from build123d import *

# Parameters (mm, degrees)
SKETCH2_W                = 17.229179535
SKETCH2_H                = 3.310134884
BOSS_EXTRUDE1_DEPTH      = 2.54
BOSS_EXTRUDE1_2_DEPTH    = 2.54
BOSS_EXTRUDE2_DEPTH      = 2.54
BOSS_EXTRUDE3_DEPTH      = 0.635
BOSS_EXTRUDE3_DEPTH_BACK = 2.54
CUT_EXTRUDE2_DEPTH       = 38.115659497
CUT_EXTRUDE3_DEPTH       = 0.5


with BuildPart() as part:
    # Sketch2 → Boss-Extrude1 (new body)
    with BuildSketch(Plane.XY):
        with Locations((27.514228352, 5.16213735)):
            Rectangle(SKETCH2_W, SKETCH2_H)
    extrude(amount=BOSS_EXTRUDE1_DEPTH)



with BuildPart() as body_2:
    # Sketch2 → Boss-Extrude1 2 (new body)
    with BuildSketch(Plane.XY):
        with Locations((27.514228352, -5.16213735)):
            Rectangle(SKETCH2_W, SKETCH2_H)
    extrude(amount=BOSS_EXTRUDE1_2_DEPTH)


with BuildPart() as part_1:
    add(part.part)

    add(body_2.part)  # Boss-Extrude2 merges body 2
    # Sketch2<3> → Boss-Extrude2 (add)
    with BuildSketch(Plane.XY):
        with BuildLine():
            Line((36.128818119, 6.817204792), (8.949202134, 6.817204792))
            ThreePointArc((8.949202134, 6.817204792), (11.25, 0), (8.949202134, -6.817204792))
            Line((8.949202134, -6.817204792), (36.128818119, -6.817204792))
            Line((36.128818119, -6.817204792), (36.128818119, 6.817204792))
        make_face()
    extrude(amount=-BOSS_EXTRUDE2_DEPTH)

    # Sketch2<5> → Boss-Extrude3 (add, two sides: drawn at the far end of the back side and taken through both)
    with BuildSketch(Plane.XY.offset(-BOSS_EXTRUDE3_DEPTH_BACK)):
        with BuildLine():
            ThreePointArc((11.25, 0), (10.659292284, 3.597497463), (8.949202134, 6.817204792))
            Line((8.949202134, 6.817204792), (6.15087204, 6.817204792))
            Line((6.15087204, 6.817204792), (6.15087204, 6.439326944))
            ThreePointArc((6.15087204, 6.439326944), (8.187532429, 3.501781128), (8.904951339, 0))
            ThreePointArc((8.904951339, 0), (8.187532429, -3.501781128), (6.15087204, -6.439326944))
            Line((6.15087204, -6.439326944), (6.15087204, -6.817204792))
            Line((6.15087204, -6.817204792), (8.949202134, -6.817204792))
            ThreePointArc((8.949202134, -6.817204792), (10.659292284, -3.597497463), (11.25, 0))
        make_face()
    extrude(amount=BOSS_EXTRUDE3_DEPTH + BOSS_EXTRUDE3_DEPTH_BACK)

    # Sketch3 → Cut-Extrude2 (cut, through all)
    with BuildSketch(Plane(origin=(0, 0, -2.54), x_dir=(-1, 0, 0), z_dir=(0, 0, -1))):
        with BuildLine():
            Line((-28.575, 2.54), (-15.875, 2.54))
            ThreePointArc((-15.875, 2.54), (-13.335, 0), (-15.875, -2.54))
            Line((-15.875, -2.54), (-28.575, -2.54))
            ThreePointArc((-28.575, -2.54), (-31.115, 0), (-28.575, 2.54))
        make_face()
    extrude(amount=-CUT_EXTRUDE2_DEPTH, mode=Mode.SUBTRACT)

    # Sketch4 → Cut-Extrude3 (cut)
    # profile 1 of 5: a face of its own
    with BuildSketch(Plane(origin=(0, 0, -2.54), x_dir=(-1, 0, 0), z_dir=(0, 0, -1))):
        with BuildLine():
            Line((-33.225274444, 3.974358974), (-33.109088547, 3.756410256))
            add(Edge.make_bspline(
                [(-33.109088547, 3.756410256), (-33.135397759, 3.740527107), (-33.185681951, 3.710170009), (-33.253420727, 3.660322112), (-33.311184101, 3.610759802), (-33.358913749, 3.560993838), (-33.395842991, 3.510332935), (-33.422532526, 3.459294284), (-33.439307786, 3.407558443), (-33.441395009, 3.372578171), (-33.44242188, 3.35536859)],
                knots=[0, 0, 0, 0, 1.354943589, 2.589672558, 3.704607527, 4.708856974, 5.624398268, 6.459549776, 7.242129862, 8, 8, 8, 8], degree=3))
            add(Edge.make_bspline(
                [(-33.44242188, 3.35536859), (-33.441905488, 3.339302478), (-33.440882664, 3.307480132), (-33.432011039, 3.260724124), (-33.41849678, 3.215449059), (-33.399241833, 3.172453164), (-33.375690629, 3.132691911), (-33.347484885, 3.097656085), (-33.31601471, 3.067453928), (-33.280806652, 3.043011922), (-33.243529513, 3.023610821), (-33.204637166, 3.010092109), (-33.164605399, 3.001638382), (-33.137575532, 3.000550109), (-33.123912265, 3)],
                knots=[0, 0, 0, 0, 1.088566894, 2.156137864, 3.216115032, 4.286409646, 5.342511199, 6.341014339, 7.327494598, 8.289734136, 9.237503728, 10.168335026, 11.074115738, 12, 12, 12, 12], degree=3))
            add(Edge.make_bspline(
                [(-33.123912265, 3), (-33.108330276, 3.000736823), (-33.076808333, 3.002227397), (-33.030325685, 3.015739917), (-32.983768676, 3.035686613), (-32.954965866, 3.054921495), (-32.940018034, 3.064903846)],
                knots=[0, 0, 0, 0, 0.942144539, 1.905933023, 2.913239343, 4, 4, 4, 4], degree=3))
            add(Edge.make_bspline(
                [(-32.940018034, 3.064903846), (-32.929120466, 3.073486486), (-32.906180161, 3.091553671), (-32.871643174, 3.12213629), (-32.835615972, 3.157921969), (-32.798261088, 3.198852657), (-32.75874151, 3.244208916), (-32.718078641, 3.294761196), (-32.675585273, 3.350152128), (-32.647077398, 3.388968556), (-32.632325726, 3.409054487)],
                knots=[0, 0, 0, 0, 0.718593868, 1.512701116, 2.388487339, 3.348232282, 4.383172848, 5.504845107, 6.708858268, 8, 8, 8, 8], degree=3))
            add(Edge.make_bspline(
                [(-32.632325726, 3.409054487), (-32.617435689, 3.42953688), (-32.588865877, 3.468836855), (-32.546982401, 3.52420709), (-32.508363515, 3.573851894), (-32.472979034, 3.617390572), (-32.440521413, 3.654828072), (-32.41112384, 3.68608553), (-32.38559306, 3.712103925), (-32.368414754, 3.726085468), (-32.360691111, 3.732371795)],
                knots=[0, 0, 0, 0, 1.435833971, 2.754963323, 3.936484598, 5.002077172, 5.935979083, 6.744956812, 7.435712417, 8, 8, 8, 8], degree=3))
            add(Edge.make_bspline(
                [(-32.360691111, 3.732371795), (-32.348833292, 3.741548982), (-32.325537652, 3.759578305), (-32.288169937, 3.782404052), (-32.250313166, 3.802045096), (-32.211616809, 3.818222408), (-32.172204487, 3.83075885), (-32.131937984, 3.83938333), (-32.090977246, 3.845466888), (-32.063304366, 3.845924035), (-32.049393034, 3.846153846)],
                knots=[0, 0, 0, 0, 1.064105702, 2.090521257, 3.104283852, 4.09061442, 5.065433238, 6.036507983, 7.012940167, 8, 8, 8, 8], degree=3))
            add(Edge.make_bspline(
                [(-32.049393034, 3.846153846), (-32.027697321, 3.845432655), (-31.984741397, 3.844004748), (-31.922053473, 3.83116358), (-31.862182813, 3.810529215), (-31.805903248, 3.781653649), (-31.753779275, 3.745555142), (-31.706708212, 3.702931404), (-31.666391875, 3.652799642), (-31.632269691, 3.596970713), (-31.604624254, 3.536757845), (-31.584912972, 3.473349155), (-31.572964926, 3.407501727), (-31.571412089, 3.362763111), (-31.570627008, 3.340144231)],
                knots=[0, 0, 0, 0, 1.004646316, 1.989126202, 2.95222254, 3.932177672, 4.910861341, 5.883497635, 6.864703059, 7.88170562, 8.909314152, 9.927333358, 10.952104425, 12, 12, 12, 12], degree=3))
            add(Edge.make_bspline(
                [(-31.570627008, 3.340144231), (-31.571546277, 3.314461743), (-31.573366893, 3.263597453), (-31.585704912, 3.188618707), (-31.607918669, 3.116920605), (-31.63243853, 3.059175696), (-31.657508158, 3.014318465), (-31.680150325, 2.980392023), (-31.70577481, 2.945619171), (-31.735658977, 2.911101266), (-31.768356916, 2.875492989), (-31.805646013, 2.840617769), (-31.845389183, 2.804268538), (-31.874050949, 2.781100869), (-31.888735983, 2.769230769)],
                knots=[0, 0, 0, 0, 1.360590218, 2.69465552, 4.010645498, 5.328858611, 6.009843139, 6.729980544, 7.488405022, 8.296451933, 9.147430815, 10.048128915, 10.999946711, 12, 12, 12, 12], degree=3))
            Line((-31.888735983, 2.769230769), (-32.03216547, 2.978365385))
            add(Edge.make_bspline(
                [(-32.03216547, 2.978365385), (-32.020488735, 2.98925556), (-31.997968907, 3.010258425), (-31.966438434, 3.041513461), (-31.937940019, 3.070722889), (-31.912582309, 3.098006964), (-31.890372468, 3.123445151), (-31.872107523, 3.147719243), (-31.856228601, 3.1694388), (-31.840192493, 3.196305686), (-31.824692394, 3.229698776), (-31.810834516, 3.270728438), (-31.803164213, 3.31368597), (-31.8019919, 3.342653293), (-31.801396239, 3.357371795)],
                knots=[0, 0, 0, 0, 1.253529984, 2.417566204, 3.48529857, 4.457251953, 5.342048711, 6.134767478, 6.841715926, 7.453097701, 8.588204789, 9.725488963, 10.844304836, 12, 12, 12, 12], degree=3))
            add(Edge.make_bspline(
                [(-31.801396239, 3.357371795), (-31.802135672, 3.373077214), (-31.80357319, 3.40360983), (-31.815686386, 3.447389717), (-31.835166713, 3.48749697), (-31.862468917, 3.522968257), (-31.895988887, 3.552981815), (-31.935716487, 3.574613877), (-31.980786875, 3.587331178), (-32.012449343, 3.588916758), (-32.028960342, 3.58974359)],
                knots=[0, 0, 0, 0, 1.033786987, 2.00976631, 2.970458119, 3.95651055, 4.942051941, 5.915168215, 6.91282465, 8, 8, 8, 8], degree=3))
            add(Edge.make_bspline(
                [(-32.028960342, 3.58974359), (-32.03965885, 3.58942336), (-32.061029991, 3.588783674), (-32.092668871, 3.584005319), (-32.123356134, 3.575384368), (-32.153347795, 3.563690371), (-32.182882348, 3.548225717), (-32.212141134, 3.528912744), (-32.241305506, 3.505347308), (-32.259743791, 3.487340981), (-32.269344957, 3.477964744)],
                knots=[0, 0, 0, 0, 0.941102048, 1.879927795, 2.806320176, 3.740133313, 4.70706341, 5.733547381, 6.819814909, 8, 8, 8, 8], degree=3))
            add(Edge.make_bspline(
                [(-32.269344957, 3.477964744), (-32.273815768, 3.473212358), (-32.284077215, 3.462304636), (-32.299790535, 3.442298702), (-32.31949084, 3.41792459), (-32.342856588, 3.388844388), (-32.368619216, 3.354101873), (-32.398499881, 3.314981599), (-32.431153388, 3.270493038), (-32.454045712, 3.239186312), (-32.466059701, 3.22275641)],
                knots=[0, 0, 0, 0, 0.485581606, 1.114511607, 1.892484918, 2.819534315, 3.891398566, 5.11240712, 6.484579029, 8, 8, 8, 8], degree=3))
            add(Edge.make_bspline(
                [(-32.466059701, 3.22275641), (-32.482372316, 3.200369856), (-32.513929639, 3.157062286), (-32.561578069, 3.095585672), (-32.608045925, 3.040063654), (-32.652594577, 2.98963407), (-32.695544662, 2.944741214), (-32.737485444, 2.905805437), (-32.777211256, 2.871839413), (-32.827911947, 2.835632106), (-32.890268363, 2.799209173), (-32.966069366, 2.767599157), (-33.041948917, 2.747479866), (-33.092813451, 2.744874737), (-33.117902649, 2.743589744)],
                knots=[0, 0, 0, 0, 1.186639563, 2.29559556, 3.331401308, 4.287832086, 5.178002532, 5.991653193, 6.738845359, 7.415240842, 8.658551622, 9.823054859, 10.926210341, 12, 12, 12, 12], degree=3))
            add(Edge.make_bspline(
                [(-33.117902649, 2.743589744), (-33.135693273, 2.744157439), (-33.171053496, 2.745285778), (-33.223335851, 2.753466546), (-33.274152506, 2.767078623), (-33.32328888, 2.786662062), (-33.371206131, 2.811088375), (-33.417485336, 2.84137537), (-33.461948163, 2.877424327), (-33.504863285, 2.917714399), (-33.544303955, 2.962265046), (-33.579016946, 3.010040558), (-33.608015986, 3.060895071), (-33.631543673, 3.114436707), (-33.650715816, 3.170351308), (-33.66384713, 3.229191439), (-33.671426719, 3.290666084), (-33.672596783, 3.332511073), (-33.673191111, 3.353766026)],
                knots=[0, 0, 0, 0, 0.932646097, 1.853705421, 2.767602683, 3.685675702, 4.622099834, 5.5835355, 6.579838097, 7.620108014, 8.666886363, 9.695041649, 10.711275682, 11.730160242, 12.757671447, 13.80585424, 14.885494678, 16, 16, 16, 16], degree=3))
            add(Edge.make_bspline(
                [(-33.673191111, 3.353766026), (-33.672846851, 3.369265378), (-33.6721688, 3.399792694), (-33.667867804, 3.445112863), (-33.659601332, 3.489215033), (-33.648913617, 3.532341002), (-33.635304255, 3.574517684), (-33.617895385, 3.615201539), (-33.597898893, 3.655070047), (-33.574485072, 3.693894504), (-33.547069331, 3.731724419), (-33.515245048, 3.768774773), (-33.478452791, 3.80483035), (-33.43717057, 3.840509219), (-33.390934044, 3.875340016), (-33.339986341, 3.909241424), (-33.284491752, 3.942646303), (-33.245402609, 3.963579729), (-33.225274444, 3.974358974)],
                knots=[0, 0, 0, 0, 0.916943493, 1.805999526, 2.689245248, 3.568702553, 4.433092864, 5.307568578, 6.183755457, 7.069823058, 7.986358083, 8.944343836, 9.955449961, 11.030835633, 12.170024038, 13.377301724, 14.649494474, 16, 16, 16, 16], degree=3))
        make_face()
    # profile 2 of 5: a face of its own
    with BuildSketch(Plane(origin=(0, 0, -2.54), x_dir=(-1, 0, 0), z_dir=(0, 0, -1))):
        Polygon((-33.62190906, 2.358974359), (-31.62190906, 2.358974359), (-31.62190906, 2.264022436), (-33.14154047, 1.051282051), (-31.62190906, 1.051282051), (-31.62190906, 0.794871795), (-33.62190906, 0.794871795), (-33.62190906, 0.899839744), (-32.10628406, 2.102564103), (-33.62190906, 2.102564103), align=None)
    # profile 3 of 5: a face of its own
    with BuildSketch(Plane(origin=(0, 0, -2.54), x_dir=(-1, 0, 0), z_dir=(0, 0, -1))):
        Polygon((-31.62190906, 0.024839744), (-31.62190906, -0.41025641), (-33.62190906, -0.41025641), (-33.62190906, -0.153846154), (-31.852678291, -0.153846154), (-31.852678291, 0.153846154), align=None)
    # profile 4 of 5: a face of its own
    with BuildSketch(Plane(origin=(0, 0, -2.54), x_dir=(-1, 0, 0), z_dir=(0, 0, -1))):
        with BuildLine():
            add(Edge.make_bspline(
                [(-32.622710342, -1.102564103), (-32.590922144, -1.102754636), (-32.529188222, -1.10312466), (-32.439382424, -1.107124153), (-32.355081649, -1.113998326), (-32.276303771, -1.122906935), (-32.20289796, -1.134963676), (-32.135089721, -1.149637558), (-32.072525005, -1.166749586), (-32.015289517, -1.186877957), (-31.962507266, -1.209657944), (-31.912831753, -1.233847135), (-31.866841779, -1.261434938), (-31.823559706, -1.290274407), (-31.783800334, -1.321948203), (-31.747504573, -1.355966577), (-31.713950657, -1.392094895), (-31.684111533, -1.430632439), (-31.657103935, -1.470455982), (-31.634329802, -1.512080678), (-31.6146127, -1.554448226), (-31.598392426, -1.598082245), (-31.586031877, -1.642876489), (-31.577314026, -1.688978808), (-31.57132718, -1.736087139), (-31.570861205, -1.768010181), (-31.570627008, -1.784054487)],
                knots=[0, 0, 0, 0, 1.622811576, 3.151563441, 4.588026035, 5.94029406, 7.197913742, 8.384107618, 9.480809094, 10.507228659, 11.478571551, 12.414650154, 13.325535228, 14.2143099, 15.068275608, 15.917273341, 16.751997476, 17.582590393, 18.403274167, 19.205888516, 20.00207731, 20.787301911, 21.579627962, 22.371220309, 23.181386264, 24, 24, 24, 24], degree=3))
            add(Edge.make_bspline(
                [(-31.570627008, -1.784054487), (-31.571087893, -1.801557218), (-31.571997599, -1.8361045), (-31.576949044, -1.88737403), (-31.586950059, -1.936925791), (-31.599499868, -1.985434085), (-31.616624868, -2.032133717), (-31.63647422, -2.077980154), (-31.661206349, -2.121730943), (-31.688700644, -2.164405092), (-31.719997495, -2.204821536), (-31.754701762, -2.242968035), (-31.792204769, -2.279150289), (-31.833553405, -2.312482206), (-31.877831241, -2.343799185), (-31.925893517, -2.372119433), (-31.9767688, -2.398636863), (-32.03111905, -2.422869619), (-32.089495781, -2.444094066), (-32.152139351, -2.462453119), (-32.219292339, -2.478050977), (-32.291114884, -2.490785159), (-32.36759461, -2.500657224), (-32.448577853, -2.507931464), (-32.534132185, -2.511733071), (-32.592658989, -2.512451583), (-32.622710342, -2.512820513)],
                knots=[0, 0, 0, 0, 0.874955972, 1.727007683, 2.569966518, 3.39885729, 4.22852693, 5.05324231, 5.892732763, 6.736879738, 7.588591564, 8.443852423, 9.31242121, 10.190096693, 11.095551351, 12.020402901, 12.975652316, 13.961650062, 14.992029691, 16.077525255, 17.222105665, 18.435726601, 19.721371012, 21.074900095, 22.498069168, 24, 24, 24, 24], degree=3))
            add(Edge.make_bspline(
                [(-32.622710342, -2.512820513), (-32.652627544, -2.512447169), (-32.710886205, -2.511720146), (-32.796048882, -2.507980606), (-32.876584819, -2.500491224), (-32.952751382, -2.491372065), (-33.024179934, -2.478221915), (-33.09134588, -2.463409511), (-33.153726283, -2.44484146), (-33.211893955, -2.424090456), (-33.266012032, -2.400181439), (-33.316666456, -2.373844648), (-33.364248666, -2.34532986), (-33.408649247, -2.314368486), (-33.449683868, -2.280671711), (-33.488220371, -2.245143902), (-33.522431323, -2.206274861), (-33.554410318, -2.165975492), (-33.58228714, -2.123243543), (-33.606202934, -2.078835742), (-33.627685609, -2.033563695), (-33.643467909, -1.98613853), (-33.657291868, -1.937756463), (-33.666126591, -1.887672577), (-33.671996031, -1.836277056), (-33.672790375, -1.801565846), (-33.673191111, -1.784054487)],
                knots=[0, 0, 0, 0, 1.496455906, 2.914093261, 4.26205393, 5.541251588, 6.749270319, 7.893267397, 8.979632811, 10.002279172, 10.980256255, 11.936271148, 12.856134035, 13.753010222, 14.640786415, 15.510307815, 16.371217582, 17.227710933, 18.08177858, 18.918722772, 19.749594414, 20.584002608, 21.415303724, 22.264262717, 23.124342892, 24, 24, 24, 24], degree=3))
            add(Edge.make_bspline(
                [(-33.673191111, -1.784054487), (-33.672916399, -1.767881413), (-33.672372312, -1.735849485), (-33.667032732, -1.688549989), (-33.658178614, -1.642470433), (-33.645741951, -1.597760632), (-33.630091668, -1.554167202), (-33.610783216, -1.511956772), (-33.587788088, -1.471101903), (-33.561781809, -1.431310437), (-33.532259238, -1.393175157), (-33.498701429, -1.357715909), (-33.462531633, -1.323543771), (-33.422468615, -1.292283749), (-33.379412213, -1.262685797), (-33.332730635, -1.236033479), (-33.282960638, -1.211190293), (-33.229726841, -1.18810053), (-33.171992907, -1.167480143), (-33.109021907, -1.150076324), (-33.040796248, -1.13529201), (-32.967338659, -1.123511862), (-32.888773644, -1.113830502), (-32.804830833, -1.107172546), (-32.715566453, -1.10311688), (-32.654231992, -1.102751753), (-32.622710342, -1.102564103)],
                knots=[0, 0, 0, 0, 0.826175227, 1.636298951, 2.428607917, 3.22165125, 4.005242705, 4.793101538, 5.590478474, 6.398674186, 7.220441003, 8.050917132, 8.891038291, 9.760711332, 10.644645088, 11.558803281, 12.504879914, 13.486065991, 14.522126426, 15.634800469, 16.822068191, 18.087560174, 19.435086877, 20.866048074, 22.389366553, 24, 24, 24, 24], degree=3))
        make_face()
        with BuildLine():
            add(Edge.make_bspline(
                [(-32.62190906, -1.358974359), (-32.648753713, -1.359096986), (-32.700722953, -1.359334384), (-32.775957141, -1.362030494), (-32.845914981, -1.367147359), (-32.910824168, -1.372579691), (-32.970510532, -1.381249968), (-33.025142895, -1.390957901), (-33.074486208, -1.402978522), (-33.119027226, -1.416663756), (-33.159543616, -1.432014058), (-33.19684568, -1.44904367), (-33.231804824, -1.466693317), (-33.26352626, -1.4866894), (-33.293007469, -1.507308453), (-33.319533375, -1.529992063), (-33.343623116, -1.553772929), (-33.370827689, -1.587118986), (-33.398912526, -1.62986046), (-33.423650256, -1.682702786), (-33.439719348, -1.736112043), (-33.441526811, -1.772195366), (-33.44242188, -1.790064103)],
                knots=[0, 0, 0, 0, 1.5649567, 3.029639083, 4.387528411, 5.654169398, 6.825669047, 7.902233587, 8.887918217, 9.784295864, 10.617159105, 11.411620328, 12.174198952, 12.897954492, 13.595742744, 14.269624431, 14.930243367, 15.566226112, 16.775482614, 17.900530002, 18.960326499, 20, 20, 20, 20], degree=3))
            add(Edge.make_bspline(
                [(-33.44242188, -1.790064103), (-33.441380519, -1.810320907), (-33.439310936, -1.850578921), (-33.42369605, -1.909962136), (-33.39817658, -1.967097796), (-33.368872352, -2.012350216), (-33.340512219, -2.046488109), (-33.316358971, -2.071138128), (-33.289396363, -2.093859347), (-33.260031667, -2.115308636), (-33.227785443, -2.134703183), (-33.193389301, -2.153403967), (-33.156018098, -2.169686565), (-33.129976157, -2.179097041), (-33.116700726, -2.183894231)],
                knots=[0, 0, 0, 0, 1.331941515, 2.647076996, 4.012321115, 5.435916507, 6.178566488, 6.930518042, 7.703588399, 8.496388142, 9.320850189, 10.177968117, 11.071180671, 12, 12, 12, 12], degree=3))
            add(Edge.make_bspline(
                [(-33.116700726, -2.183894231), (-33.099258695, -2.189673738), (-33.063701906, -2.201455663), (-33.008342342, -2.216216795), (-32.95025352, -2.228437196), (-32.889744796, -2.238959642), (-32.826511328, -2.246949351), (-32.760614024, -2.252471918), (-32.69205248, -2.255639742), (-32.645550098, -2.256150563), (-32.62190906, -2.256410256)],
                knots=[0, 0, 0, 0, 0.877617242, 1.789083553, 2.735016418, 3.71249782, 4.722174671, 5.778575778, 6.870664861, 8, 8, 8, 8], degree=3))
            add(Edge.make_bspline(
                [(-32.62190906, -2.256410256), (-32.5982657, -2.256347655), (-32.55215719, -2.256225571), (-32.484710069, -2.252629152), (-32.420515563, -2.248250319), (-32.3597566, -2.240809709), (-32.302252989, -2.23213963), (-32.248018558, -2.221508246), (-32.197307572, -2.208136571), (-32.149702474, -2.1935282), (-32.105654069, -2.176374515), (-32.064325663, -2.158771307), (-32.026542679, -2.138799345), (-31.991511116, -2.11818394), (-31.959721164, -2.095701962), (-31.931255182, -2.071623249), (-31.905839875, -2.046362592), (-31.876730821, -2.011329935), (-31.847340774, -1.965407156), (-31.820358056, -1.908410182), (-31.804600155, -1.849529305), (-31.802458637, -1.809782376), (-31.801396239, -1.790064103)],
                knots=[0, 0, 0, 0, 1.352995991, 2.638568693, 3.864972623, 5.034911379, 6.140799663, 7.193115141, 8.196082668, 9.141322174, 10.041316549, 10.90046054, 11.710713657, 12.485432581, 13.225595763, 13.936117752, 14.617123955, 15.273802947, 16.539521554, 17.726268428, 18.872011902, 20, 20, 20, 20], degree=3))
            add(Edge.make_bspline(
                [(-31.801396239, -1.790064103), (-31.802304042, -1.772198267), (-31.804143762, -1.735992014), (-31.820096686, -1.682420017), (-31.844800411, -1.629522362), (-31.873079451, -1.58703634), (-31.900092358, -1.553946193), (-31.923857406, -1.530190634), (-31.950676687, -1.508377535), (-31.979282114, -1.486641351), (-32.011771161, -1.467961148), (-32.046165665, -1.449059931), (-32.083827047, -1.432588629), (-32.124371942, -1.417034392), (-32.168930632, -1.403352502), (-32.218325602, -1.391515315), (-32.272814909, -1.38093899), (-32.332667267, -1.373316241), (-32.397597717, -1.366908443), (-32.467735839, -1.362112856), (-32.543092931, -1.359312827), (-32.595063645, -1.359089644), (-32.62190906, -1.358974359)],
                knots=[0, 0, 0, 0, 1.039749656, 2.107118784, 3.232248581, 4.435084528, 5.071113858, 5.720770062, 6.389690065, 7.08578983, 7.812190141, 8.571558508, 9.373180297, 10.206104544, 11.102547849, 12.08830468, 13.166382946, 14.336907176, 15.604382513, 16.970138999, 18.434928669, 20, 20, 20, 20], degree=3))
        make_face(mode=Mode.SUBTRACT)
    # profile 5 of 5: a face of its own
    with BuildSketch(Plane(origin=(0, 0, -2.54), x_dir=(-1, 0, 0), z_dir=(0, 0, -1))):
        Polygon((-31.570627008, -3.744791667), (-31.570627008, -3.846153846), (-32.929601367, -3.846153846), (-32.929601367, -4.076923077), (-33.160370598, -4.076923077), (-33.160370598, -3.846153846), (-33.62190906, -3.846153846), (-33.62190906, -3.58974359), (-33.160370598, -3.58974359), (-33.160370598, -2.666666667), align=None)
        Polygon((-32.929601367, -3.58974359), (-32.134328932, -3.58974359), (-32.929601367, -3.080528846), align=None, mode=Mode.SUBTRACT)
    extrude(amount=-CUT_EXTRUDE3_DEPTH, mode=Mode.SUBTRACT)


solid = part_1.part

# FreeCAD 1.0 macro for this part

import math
import FreeCAD as App
import Part
import Sketcher

V = App.Vector
Q = App.Units.Quantity


def add_polygon(sketch, points):
    """Adds a closed chain of lines whose ends are joined by coincident constraints."""
    first, n = sketch.GeometryCount, len(points)
    for a, b in zip(points, points[1:] + points[:1]):
        sketch.addGeometry(Part.LineSegment(App.Vector(*a, 0), App.Vector(*b, 0)), False)
    for i in range(n):
        sketch.addConstraint(Sketcher.Constraint("Coincident", first + i, 2, first + (i + 1) % n, 1))

doc = App.newDocument("Part")
body = doc.addObject("PartDesign::Body", "Body")

# Sketch on XY plane
sketch1 = body.newObject("Sketcher::SketchObject", "Sketch")
sketch1.AttachmentSupport = (doc.getObject("XY_Plane"), [""])
sketch1.MapMode = "FlatFace"
add_polygon(sketch1, [(18.899639, 6.817205), (18.899639, 3.50707), (36.128818, 3.50707), (36.128818, 6.817205)])  # lines 0-3
sketch1.addConstraint([
    Sketcher.Constraint("Vertical", 0),
    Sketcher.Constraint("Horizontal", 1),
    Sketcher.Constraint("Vertical", 2),
    Sketcher.Constraint("Horizontal", 3),
    Sketcher.Constraint("DistanceX", 1, 1, 1, 2, Q("17.22918 mm")),
    Sketcher.Constraint("DistanceY", 0, 2, 0, 1, Q("3.310135 mm")),
    Sketcher.Constraint("DistanceX", -1, 1, 0, 2, Q("18.899639 mm")),
    Sketcher.Constraint("DistanceY", -1, 1, 0, 2, Q("3.50707 mm")),
])
pad1 = body.newObject("PartDesign::Pad", "Pad")
pad1.Profile = sketch1
pad1.Length = Q("0.1 in")
body2 = doc.addObject("PartDesign::Body", "Body001")

# Sketch on XY plane
sketch2 = body2.newObject("Sketcher::SketchObject", "Sketch001")
sketch2.AttachmentSupport = (doc.getObject("XY_Plane001"), [""])
sketch2.MapMode = "FlatFace"
add_polygon(sketch2, [(18.899639, -3.50707), (18.899639, -6.817205), (36.128818, -6.817205), (36.128818, -3.50707)])  # lines 0-3
sketch2.addConstraint([
    Sketcher.Constraint("Vertical", 0),
    Sketcher.Constraint("Horizontal", 1),
    Sketcher.Constraint("Vertical", 2),
    Sketcher.Constraint("Horizontal", 3),
    Sketcher.Constraint("DistanceX", 1, 1, 1, 2, Q("17.22918 mm")),
    Sketcher.Constraint("DistanceY", 0, 2, 0, 1, Q("3.310135 mm")),
    Sketcher.Constraint("DistanceX", -1, 1, 0, 2, Q("18.899639 mm")),
    Sketcher.Constraint("DistanceY", 2, 2, -1, 1, Q("3.50707 mm")),
])
pad2 = body2.newObject("PartDesign::Pad", "Pad001")
pad2.Profile = sketch2
pad2.Length = Q("0.1 in")
body.AllowCompound = True
doc.recompute()

boolean = body.newObject("PartDesign::Boolean", "Boolean")
boolean.Type = "Fuse"
boolean.addObjects([body2])

# Sketch on XY plane
sketch3 = body.newObject("Sketcher::SketchObject", "Sketch002")
sketch3.AttachmentSupport = (doc.getObject("XY_Plane"), [""])
sketch3.MapMode = "FlatFace"
sketch3.addGeometry([
    Part.LineSegment(V(36.128818, 6.817205, 0), V(8.949202, 6.817205, 0)),
    Part.ArcOfCircle(Part.Circle(V(0, 0, 0), V(0, 0, 1), 11.25), math.radians(-37.298945), math.radians(37.298945)),
    Part.LineSegment(V(8.949202, -6.817205, 0), V(36.128818, -6.817205, 0)),
    Part.LineSegment(V(36.128818, -6.817205, 0), V(36.128818, 6.817205, 0)),
], False)
sketch3.addConstraint([
    Sketcher.Constraint("Coincident", 0, 2, 1, 2),
    Sketcher.Constraint("Coincident", 1, 1, 2, 1),
    Sketcher.Constraint("Coincident", 2, 2, 3, 1),
    Sketcher.Constraint("Coincident", 3, 2, 0, 1),
    Sketcher.Constraint("Horizontal", 0),
    Sketcher.Constraint("Horizontal", 2),
    Sketcher.Constraint("Vertical", 3),
    Sketcher.Constraint("Coincident", 1, 3, -1, 1),
    Sketcher.Constraint("Vertical", 0, 2, 1, 1),
    Sketcher.Constraint("Radius", 1, Q("11.25 mm")),
    Sketcher.Constraint("DistanceY", 3, 1, 3, 2, Q("13.63441 mm")),
    Sketcher.Constraint("DistanceX", 0, 2, 0, 1, Q("27.179616 mm")),
])
pad3 = body.newObject("PartDesign::Pad", "Pad002")
pad3.Profile = sketch3
pad3.Length = Q("0.1 in")
pad3.Reversed = True

# Sketch on XY plane
sketch4 = body.newObject("Sketcher::SketchObject", "Sketch003")
sketch4.AttachmentSupport = (doc.getObject("XY_Plane"), [""])
sketch4.MapMode = "FlatFace"
sketch4.addGeometry([
    Part.ArcOfCircle(Part.Circle(V(0, 0, 0), V(0, 0, 1), 11.25), math.radians(0), math.radians(37.298945)),  # 0
    Part.LineSegment(V(8.949202, 6.817205, 0), V(6.150872, 6.817205, 0)),  # 1
    Part.LineSegment(V(6.150872, 6.817205, 0), V(6.150872, 6.439327, 0)),  # 2
    Part.ArcOfCircle(Part.Circle(V(0, 0, 0), V(0, 0, 1), 8.904951), math.radians(0), math.radians(46.312478)),  # 3
    Part.ArcOfCircle(Part.Circle(V(0, 0, 0), V(0, 0, 1), 8.904951), math.radians(-46.312478), math.radians(0)),  # 4
    Part.LineSegment(V(6.150872, -6.439327, 0), V(6.150872, -6.817205, 0)),  # 5
    Part.LineSegment(V(6.150872, -6.817205, 0), V(8.949202, -6.817205, 0)),  # 6
    Part.ArcOfCircle(Part.Circle(V(0, 0, 0), V(0, 0, 1), 11.25), math.radians(-37.298945), math.radians(0)),  # 7
], False)
sketch4.addConstraint([
    Sketcher.Constraint("Coincident", 0, 2, 1, 1),
    Sketcher.Constraint("Coincident", 1, 2, 2, 1),
    Sketcher.Constraint("Coincident", 2, 2, 3, 2),
    Sketcher.Constraint("Tangent", 3, 1, 4, 2),
    Sketcher.Constraint("Coincident", 4, 1, 5, 1),
    Sketcher.Constraint("Coincident", 5, 2, 6, 1),
    Sketcher.Constraint("Coincident", 6, 2, 7, 1),
    Sketcher.Constraint("Tangent", 7, 2, 0, 1),
    Sketcher.Constraint("Horizontal", 1),
    Sketcher.Constraint("Vertical", 2),
    Sketcher.Constraint("Vertical", 5),
    Sketcher.Constraint("Horizontal", 6),
    Sketcher.Constraint("Coincident", 0, 3, -1, 1),
    Sketcher.Constraint("Coincident", 3, 3, -1, 1),
    Sketcher.Constraint("Equal", 3, 4),
    Sketcher.Constraint("Equal", 0, 7),
    Sketcher.Constraint("Symmetric", 1, 2, 5, 2, -1),
    Sketcher.Constraint("PointOnObject", 3, 1, -1),
    Sketcher.Constraint("PointOnObject", 7, 2, -1),
    Sketcher.Constraint("Radius", 0, Q("11.25 mm")),
    Sketcher.Constraint("Radius", 3, Q("8.904951 mm")),
    Sketcher.Constraint("DistanceX", 1, 2, 1, 1, Q("2.79833 mm")),
    Sketcher.Constraint("DistanceY", 2, 2, 2, 1, Q("0.377878 mm")),
])
pad4 = body.newObject("PartDesign::Pad", "Pad003")
pad4.Profile = sketch4
pad4.Type = "TwoLengths"
pad4.Length = Q("0.025 in")
pad4.Length2 = Q("0.1 in")

# Sketch on XY plane
sketch5 = body.newObject("Sketcher::SketchObject", "Sketch004")
sketch5.AttachmentSupport = (doc.getObject("XY_Plane"), [""])
sketch5.MapMode = "FlatFace"
sketch5.AttachmentOffset = App.Placement(V(0, 0, -0.1 * 25.4), App.Rotation())
sketch5.addGeometry([
    Part.LineSegment(V(15.875, 2.54, 0), V(28.575, 2.54, 0)),
    Part.ArcOfCircle(Part.Circle(V(28.575, 0, 0), V(0, 0, 1), 2.54), math.radians(-90), math.radians(90)),
    Part.LineSegment(V(28.575, -2.54, 0), V(15.875, -2.54, 0)),
    Part.ArcOfCircle(Part.Circle(V(15.875, 0, 0), V(0, 0, 1), 2.54), math.radians(90), math.radians(270)),
], False)
sketch5.addConstraint([
    Sketcher.Constraint("Tangent", 0, 2, 1, 2),
    Sketcher.Constraint("Tangent", 1, 1, 2, 1),
    Sketcher.Constraint("Tangent", 2, 2, 3, 2),
    Sketcher.Constraint("Tangent", 3, 1, 0, 1),
    Sketcher.Constraint("Horizontal", 0),
    Sketcher.Constraint("Horizontal", 2),
    Sketcher.Constraint("PointOnObject", 1, 3, -1),
    Sketcher.Constraint("Radius", 1, Q("0.1 in")),
    Sketcher.Constraint("DistanceX", 0, 1, 0, 2, Q("0.5 in")),
    Sketcher.Constraint("DistanceX", -1, 1, 1, 3, Q("1.125 in")),
])
pocket1 = body.newObject("PartDesign::Pocket", "Pocket")
pocket1.Profile = sketch5
pocket1.Type = "ThroughAll"
pocket1.Reversed = True

# Sketch on XY plane
sketch6 = body.newObject("Sketcher::SketchObject", "Sketch005")
sketch6.AttachmentSupport = (doc.getObject("XY_Plane"), [""])
sketch6.MapMode = "FlatFace"
sketch6.AttachmentOffset = App.Placement(V(0, 0, -0.1 * 25.4), App.Rotation())
sketch6.addGeometry(Part.LineSegment(V(33.109089, 3.75641, 0), V(33.225274, 3.974359, 0)), False)  # 0
sketch6.addGeometry(Part.BSplineCurve([V(33.673191, 3.353766, 0), V(33.672847, 3.369265, 0), V(33.672169, 3.399793, 0), V(33.667868, 3.445113, 0), V(33.659601, 3.489215, 0), V(33.648914, 3.532341, 0), V(33.635304, 3.574518, 0), V(33.617895, 3.615202, 0), V(33.597899, 3.65507, 0), V(33.574485, 3.693895, 0), V(33.547069, 3.731724, 0), V(33.515245, 3.768775, 0), V(33.478453, 3.80483, 0), V(33.437171, 3.840509, 0), V(33.390934, 3.87534, 0), V(33.339986, 3.909241, 0), V(33.284492, 3.942646, 0), V(33.245403, 3.96358, 0), V(33.225274, 3.974359, 0)], [4, 1, 1, 1, 1, 1, 1, 1, 1, 1, 1, 1, 1, 1, 1, 1, 4], [0, 0.916943493, 1.805999526, 2.689245248, 3.568702553, 4.433092864, 5.307568578, 6.183755457, 7.069823058, 7.986358083, 8.944343836, 9.955449961, 11.030835633, 12.170024038, 13.377301724, 14.649494474, 16], False, 3, [1, 1, 1, 1, 1, 1, 1, 1, 1, 1, 1, 1, 1, 1, 1, 1, 1, 1, 1], False), False)  # 1
sketch6.addGeometry(Part.BSplineCurve([V(33.117903, 2.74359, 0), V(33.135693, 2.744157, 0), V(33.171053, 2.745286, 0), V(33.223336, 2.753467, 0), V(33.274153, 2.767079, 0), V(33.323289, 2.786662, 0), V(33.371206, 2.811088, 0), V(33.417485, 2.841375, 0), V(33.461948, 2.877424, 0), V(33.504863, 2.917714, 0), V(33.544304, 2.962265, 0), V(33.579017, 3.010041, 0), V(33.608016, 3.060895, 0), V(33.631544, 3.114437, 0), V(33.650716, 3.170351, 0), V(33.663847, 3.229191, 0), V(33.671427, 3.290666, 0), V(33.672597, 3.332511, 0), V(33.673191, 3.353766, 0)], [4, 1, 1, 1, 1, 1, 1, 1, 1, 1, 1, 1, 1, 1, 1, 1, 4], [0, 0.932646097, 1.853705421, 2.767602683, 3.685675702, 4.622099834, 5.5835355, 6.579838097, 7.620108014, 8.666886363, 9.695041649, 10.711275682, 11.730160242, 12.757671447, 13.80585424, 14.885494678, 16], False, 3, [1, 1, 1, 1, 1, 1, 1, 1, 1, 1, 1, 1, 1, 1, 1, 1, 1, 1, 1], False), False)  # 2
sketch6.addGeometry(Part.BSplineCurve([V(32.46606, 3.222756, 0), V(32.482372, 3.20037, 0), V(32.51393, 3.157062, 0), V(32.561578, 3.095586, 0), V(32.608046, 3.040064, 0), V(32.652595, 2.989634, 0), V(32.695545, 2.944741, 0), V(32.737485, 2.905805, 0), V(32.777211, 2.871839, 0), V(32.827912, 2.835632, 0), V(32.890268, 2.799209, 0), V(32.966069, 2.767599, 0), V(33.041949, 2.74748, 0), V(33.092813, 2.744875, 0), V(33.117903, 2.74359, 0)], [4, 1, 1, 1, 1, 1, 1, 1, 1, 1, 1, 1, 4], [0, 1.186639563, 2.29559556, 3.331401308, 4.287832086, 5.178002532, 5.991653193, 6.738845359, 7.415240842, 8.658551622, 9.823054859, 10.926210341, 12], False, 3, [1, 1, 1, 1, 1, 1, 1, 1, 1, 1, 1, 1, 1, 1, 1], False), False)  # 3
sketch6.addGeometry(Part.BSplineCurve([V(32.269345, 3.477965, 0), V(32.273816, 3.473212, 0), V(32.284077, 3.462305, 0), V(32.299791, 3.442299, 0), V(32.319491, 3.417925, 0), V(32.342857, 3.388844, 0), V(32.368619, 3.354102, 0), V(32.3985, 3.314982, 0), V(32.431153, 3.270493, 0), V(32.454046, 3.239186, 0), V(32.46606, 3.222756, 0)], [4, 1, 1, 1, 1, 1, 1, 1, 4], [0, 0.485581606, 1.114511607, 1.892484918, 2.819534315, 3.891398566, 5.11240712, 6.484579029, 8], False, 3, [1, 1, 1, 1, 1, 1, 1, 1, 1, 1, 1], False), False)  # 4
sketch6.addGeometry(Part.BSplineCurve([V(32.02896, 3.589744, 0), V(32.039659, 3.589423, 0), V(32.06103, 3.588784, 0), V(32.092669, 3.584005, 0), V(32.123356, 3.575384, 0), V(32.153348, 3.56369, 0), V(32.182882, 3.548226, 0), V(32.212141, 3.528913, 0), V(32.241306, 3.505347, 0), V(32.259744, 3.487341, 0), V(32.269345, 3.477965, 0)], [4, 1, 1, 1, 1, 1, 1, 1, 4], [0, 0.941102048, 1.879927795, 2.806320176, 3.740133313, 4.70706341, 5.733547381, 6.819814909, 8], False, 3, [1, 1, 1, 1, 1, 1, 1, 1, 1, 1, 1], False), False)  # 5
sketch6.addGeometry(Part.BSplineCurve([V(31.801396, 3.357372, 0), V(31.802136, 3.373077, 0), V(31.803573, 3.40361, 0), V(31.815686, 3.44739, 0), V(31.835167, 3.487497, 0), V(31.862469, 3.522968, 0), V(31.895989, 3.552982, 0), V(31.935716, 3.574614, 0), V(31.980787, 3.587331, 0), V(32.012449, 3.588917, 0), V(32.02896, 3.589744, 0)], [4, 1, 1, 1, 1, 1, 1, 1, 4], [0, 1.033786987, 2.00976631, 2.970458119, 3.95651055, 4.942051941, 5.915168215, 6.91282465, 8], False, 3, [1, 1, 1, 1, 1, 1, 1, 1, 1, 1, 1], False), False)  # 6
sketch6.addGeometry(Part.BSplineCurve([V(32.032165, 2.978365, 0), V(32.020489, 2.989256, 0), V(31.997969, 3.010258, 0), V(31.966438, 3.041513, 0), V(31.93794, 3.070723, 0), V(31.912582, 3.098007, 0), V(31.890372, 3.123445, 0), V(31.872108, 3.147719, 0), V(31.856229, 3.169439, 0), V(31.840192, 3.196306, 0), V(31.824692, 3.229699, 0), V(31.810835, 3.270728, 0), V(31.803164, 3.313686, 0), V(31.801992, 3.342653, 0), V(31.801396, 3.357372, 0)], [4, 1, 1, 1, 1, 1, 1, 1, 1, 1, 1, 1, 4], [0, 1.253529984, 2.417566204, 3.48529857, 4.457251953, 5.342048711, 6.134767478, 6.841715926, 7.453097701, 8.588204789, 9.725488963, 10.844304836, 12], False, 3, [1, 1, 1, 1, 1, 1, 1, 1, 1, 1, 1, 1, 1, 1, 1], False), False)  # 7
sketch6.addGeometry(Part.LineSegment(V(32.032165, 2.978365, 0), V(31.888736, 2.769231, 0)), False)  # 8
sketch6.addGeometry(Part.BSplineCurve([V(31.570627, 3.340144, 0), V(31.571546, 3.314462, 0), V(31.573367, 3.263597, 0), V(31.585705, 3.188619, 0), V(31.607919, 3.116921, 0), V(31.632439, 3.059176, 0), V(31.657508, 3.014318, 0), V(31.68015, 2.980392, 0), V(31.705775, 2.945619, 0), V(31.735659, 2.911101, 0), V(31.768357, 2.875493, 0), V(31.805646, 2.840618, 0), V(31.845389, 2.804269, 0), V(31.874051, 2.781101, 0), V(31.888736, 2.769231, 0)], [4, 1, 1, 1, 1, 1, 1, 1, 1, 1, 1, 1, 4], [0, 1.360590218, 2.69465552, 4.010645498, 5.328858611, 6.009843139, 6.729980544, 7.488405022, 8.296451933, 9.147430815, 10.048128915, 10.999946711, 12], False, 3, [1, 1, 1, 1, 1, 1, 1, 1, 1, 1, 1, 1, 1, 1, 1], False), False)  # 9
sketch6.addGeometry(Part.BSplineCurve([V(32.049393, 3.846154, 0), V(32.027697, 3.845433, 0), V(31.984741, 3.844005, 0), V(31.922053, 3.831164, 0), V(31.862183, 3.810529, 0), V(31.805903, 3.781654, 0), V(31.753779, 3.745555, 0), V(31.706708, 3.702931, 0), V(31.666392, 3.6528, 0), V(31.63227, 3.596971, 0), V(31.604624, 3.536758, 0), V(31.584913, 3.473349, 0), V(31.572965, 3.407502, 0), V(31.571412, 3.362763, 0), V(31.570627, 3.340144, 0)], [4, 1, 1, 1, 1, 1, 1, 1, 1, 1, 1, 1, 4], [0, 1.004646316, 1.989126202, 2.95222254, 3.932177672, 4.910861341, 5.883497635, 6.864703059, 7.88170562, 8.909314152, 9.927333358, 10.952104425, 12], False, 3, [1, 1, 1, 1, 1, 1, 1, 1, 1, 1, 1, 1, 1, 1, 1], False), False)  # 10
sketch6.addGeometry(Part.BSplineCurve([V(32.360691, 3.732372, 0), V(32.348833, 3.741549, 0), V(32.325538, 3.759578, 0), V(32.28817, 3.782404, 0), V(32.250313, 3.802045, 0), V(32.211617, 3.818222, 0), V(32.172204, 3.830759, 0), V(32.131938, 3.839383, 0), V(32.090977, 3.845467, 0), V(32.063304, 3.845924, 0), V(32.049393, 3.846154, 0)], [4, 1, 1, 1, 1, 1, 1, 1, 4], [0, 1.064105702, 2.090521257, 3.104283852, 4.09061442, 5.065433238, 6.036507983, 7.012940167, 8], False, 3, [1, 1, 1, 1, 1, 1, 1, 1, 1, 1, 1], False), False)  # 11
sketch6.addGeometry(Part.BSplineCurve([V(32.632326, 3.409054, 0), V(32.617436, 3.429537, 0), V(32.588866, 3.468837, 0), V(32.546982, 3.524207, 0), V(32.508364, 3.573852, 0), V(32.472979, 3.617391, 0), V(32.440521, 3.654828, 0), V(32.411124, 3.686086, 0), V(32.385593, 3.712104, 0), V(32.368415, 3.726085, 0), V(32.360691, 3.732372, 0)], [4, 1, 1, 1, 1, 1, 1, 1, 4], [0, 1.435833971, 2.754963323, 3.936484598, 5.002077172, 5.935979083, 6.744956812, 7.435712417, 8], False, 3, [1, 1, 1, 1, 1, 1, 1, 1, 1, 1, 1], False), False)  # 12
sketch6.addGeometry(Part.BSplineCurve([V(32.940018, 3.064904, 0), V(32.92912, 3.073486, 0), V(32.90618, 3.091554, 0), V(32.871643, 3.122136, 0), V(32.835616, 3.157922, 0), V(32.798261, 3.198853, 0), V(32.758742, 3.244209, 0), V(32.718079, 3.294761, 0), V(32.675585, 3.350152, 0), V(32.647077, 3.388969, 0), V(32.632326, 3.409054, 0)], [4, 1, 1, 1, 1, 1, 1, 1, 4], [0, 0.718593868, 1.512701116, 2.388487339, 3.348232282, 4.383172848, 5.504845107, 6.708858268, 8], False, 3, [1, 1, 1, 1, 1, 1, 1, 1, 1, 1, 1], False), False)  # 13
sketch6.addGeometry(Part.BSplineCurve([V(33.123912, 3, 0), V(33.10833, 3.000737, 0), V(33.076808, 3.002227, 0), V(33.030326, 3.01574, 0), V(32.983769, 3.035687, 0), V(32.954966, 3.054921, 0), V(32.940018, 3.064904, 0)], [4, 1, 1, 1, 4], [0, 0.942144539, 1.905933023, 2.913239343, 4], False, 3, [1, 1, 1, 1, 1, 1, 1], False), False)  # 14
sketch6.addGeometry(Part.BSplineCurve([V(33.442422, 3.355369, 0), V(33.441905, 3.339302, 0), V(33.440883, 3.30748, 0), V(33.432011, 3.260724, 0), V(33.418497, 3.215449, 0), V(33.399242, 3.172453, 0), V(33.375691, 3.132692, 0), V(33.347485, 3.097656, 0), V(33.316015, 3.067454, 0), V(33.280807, 3.043012, 0), V(33.24353, 3.023611, 0), V(33.204637, 3.010092, 0), V(33.164605, 3.001638, 0), V(33.137576, 3.00055, 0), V(33.123912, 3, 0)], [4, 1, 1, 1, 1, 1, 1, 1, 1, 1, 1, 1, 4], [0, 1.088566894, 2.156137864, 3.216115032, 4.286409646, 5.342511199, 6.341014339, 7.327494598, 8.289734136, 9.237503728, 10.168335026, 11.074115738, 12], False, 3, [1, 1, 1, 1, 1, 1, 1, 1, 1, 1, 1, 1, 1, 1, 1], False), False)  # 15
sketch6.addGeometry(Part.BSplineCurve([V(33.109089, 3.75641, 0), V(33.135398, 3.740527, 0), V(33.185682, 3.71017, 0), V(33.253421, 3.660322, 0), V(33.311184, 3.61076, 0), V(33.358914, 3.560994, 0), V(33.395843, 3.510333, 0), V(33.422533, 3.459294, 0), V(33.439308, 3.407558, 0), V(33.441395, 3.372578, 0), V(33.442422, 3.355369, 0)], [4, 1, 1, 1, 1, 1, 1, 1, 4], [0, 1.354943589, 2.589672558, 3.704607527, 4.708856974, 5.624398268, 6.459549776, 7.242129862, 8], False, 3, [1, 1, 1, 1, 1, 1, 1, 1, 1, 1, 1], False), False)  # 16
add_polygon(sketch6, [(31.621909, 2.358974), (33.621909, 2.358974), (33.621909, 2.102564), (32.106284, 2.102564), (33.621909, 0.89984), (33.621909, 0.794872), (31.621909, 0.794872), (31.621909, 1.051282), (33.14154, 1.051282), (31.621909, 2.264022)])  # lines 17-26
add_polygon(sketch6, [(31.621909, -0.410256), (31.621909, 0.02484), (31.852678, 0.153846), (31.852678, -0.153846), (33.621909, -0.153846), (33.621909, -0.410256)])  # lines 27-32
sketch6.addGeometry(Part.BSplineCurve([V(32.62271, -1.102564, 0), V(32.590922, -1.102755, 0), V(32.529188, -1.103125, 0), V(32.439382, -1.107124, 0), V(32.355082, -1.113998, 0), V(32.276304, -1.122907, 0), V(32.202898, -1.134964, 0), V(32.13509, -1.149638, 0), V(32.072525, -1.16675, 0), V(32.01529, -1.186878, 0), V(31.962507, -1.209658, 0), V(31.912832, -1.233847, 0), V(31.866842, -1.261435, 0), V(31.82356, -1.290274, 0), V(31.7838, -1.321948, 0), V(31.747505, -1.355967, 0), V(31.713951, -1.392095, 0), V(31.684112, -1.430632, 0), V(31.657104, -1.470456, 0), V(31.63433, -1.512081, 0), V(31.614613, -1.554448, 0), V(31.598392, -1.598082, 0), V(31.586032, -1.642876, 0), V(31.577314, -1.688979, 0), V(31.571327, -1.736087, 0), V(31.570861, -1.76801, 0), V(31.570627, -1.784054, 0)], [4, 1, 1, 1, 1, 1, 1, 1, 1, 1, 1, 1, 1, 1, 1, 1, 1, 1, 1, 1, 1, 1, 1, 1, 4], [0, 1.622811576, 3.151563441, 4.588026035, 5.94029406, 7.197913742, 8.384107618, 9.480809094, 10.507228659, 11.478571551, 12.414650154, 13.325535228, 14.2143099, 15.068275608, 15.917273341, 16.751997476, 17.582590393, 18.403274167, 19.205888516, 20.00207731, 20.787301911, 21.579627962, 22.371220309, 23.181386264, 24], False, 3, [1, 1, 1, 1, 1, 1, 1, 1, 1, 1, 1, 1, 1, 1, 1, 1, 1, 1, 1, 1, 1, 1, 1, 1, 1, 1, 1], False), False)  # 33
sketch6.addGeometry(Part.BSplineCurve([V(33.673191, -1.784054, 0), V(33.672916, -1.767881, 0), V(33.672372, -1.735849, 0), V(33.667033, -1.68855, 0), V(33.658179, -1.64247, 0), V(33.645742, -1.597761, 0), V(33.630092, -1.554167, 0), V(33.610783, -1.511957, 0), V(33.587788, -1.471102, 0), V(33.561782, -1.43131, 0), V(33.532259, -1.393175, 0), V(33.498701, -1.357716, 0), V(33.462532, -1.323544, 0), V(33.422469, -1.292284, 0), V(33.379412, -1.262686, 0), V(33.332731, -1.236033, 0), V(33.282961, -1.21119, 0), V(33.229727, -1.188101, 0), V(33.171993, -1.16748, 0), V(33.109022, -1.150076, 0), V(33.040796, -1.135292, 0), V(32.967339, -1.123512, 0), V(32.888774, -1.113831, 0), V(32.804831, -1.107173, 0), V(32.715566, -1.103117, 0), V(32.654232, -1.102752, 0), V(32.62271, -1.102564, 0)], [4, 1, 1, 1, 1, 1, 1, 1, 1, 1, 1, 1, 1, 1, 1, 1, 1, 1, 1, 1, 1, 1, 1, 1, 4], [0, 0.826175227, 1.636298951, 2.428607917, 3.22165125, 4.005242705, 4.793101538, 5.590478474, 6.398674186, 7.220441003, 8.050917132, 8.891038291, 9.760711332, 10.644645088, 11.558803281, 12.504879914, 13.486065991, 14.522126426, 15.634800469, 16.822068191, 18.087560174, 19.435086877, 20.866048074, 22.389366553, 24], False, 3, [1, 1, 1, 1, 1, 1, 1, 1, 1, 1, 1, 1, 1, 1, 1, 1, 1, 1, 1, 1, 1, 1, 1, 1, 1, 1, 1], False), False)  # 34
sketch6.addGeometry(Part.BSplineCurve([V(32.62271, -2.512821, 0), V(32.652628, -2.512447, 0), V(32.710886, -2.51172, 0), V(32.796049, -2.507981, 0), V(32.876585, -2.500491, 0), V(32.952751, -2.491372, 0), V(33.02418, -2.478222, 0), V(33.091346, -2.46341, 0), V(33.153726, -2.444841, 0), V(33.211894, -2.42409, 0), V(33.266012, -2.400181, 0), V(33.316666, -2.373845, 0), V(33.364249, -2.34533, 0), V(33.408649, -2.314368, 0), V(33.449684, -2.280672, 0), V(33.48822, -2.245144, 0), V(33.522431, -2.206275, 0), V(33.55441, -2.165975, 0), V(33.582287, -2.123244, 0), V(33.606203, -2.078836, 0), V(33.627686, -2.033564, 0), V(33.643468, -1.986139, 0), V(33.657292, -1.937756, 0), V(33.666127, -1.887673, 0), V(33.671996, -1.836277, 0), V(33.67279, -1.801566, 0), V(33.673191, -1.784054, 0)], [4, 1, 1, 1, 1, 1, 1, 1, 1, 1, 1, 1, 1, 1, 1, 1, 1, 1, 1, 1, 1, 1, 1, 1, 4], [0, 1.496455906, 2.914093261, 4.26205393, 5.541251588, 6.749270319, 7.893267397, 8.979632811, 10.002279172, 10.980256255, 11.936271148, 12.856134035, 13.753010222, 14.640786415, 15.510307815, 16.371217582, 17.227710933, 18.08177858, 18.918722772, 19.749594414, 20.584002608, 21.415303724, 22.264262717, 23.124342892, 24], False, 3, [1, 1, 1, 1, 1, 1, 1, 1, 1, 1, 1, 1, 1, 1, 1, 1, 1, 1, 1, 1, 1, 1, 1, 1, 1, 1, 1], False), False)  # 35
sketch6.addGeometry(Part.BSplineCurve([V(31.570627, -1.784054, 0), V(31.571088, -1.801557, 0), V(31.571998, -1.836105, 0), V(31.576949, -1.887374, 0), V(31.58695, -1.936926, 0), V(31.5995, -1.985434, 0), V(31.616625, -2.032134, 0), V(31.636474, -2.07798, 0), V(31.661206, -2.121731, 0), V(31.688701, -2.164405, 0), V(31.719997, -2.204822, 0), V(31.754702, -2.242968, 0), V(31.792205, -2.27915, 0), V(31.833553, -2.312482, 0), V(31.877831, -2.343799, 0), V(31.925894, -2.372119, 0), V(31.976769, -2.398637, 0), V(32.031119, -2.42287, 0), V(32.089496, -2.444094, 0), V(32.152139, -2.462453, 0), V(32.219292, -2.478051, 0), V(32.291115, -2.490785, 0), V(32.367595, -2.500657, 0), V(32.448578, -2.507931, 0), V(32.534132, -2.511733, 0), V(32.592659, -2.512452, 0), V(32.62271, -2.512821, 0)], [4, 1, 1, 1, 1, 1, 1, 1, 1, 1, 1, 1, 1, 1, 1, 1, 1, 1, 1, 1, 1, 1, 1, 1, 4], [0, 0.874955972, 1.727007683, 2.569966518, 3.39885729, 4.22852693, 5.05324231, 5.892732763, 6.736879738, 7.588591564, 8.443852423, 9.31242121, 10.190096693, 11.095551351, 12.020402901, 12.975652316, 13.961650062, 14.992029691, 16.077525255, 17.222105665, 18.435726601, 19.721371012, 21.074900095, 22.498069168, 24], False, 3, [1, 1, 1, 1, 1, 1, 1, 1, 1, 1, 1, 1, 1, 1, 1, 1, 1, 1, 1, 1, 1, 1, 1, 1, 1, 1, 1], False), False)  # 36
sketch6.addGeometry(Part.BSplineCurve([V(31.801396, -1.790064, 0), V(31.802304, -1.772198, 0), V(31.804144, -1.735992, 0), V(31.820097, -1.68242, 0), V(31.8448, -1.629522, 0), V(31.873079, -1.587036, 0), V(31.900092, -1.553946, 0), V(31.923857, -1.530191, 0), V(31.950677, -1.508378, 0), V(31.979282, -1.486641, 0), V(32.011771, -1.467961, 0), V(32.046166, -1.44906, 0), V(32.083827, -1.432589, 0), V(32.124372, -1.417034, 0), V(32.168931, -1.403353, 0), V(32.218326, -1.391515, 0), V(32.272815, -1.380939, 0), V(32.332667, -1.373316, 0), V(32.397598, -1.366908, 0), V(32.467736, -1.362113, 0), V(32.543093, -1.359313, 0), V(32.595064, -1.35909, 0), V(32.621909, -1.358974, 0)], [4, 1, 1, 1, 1, 1, 1, 1, 1, 1, 1, 1, 1, 1, 1, 1, 1, 1, 1, 1, 4], [0, 1.039749656, 2.107118784, 3.232248581, 4.435084528, 5.071113858, 5.720770062, 6.389690065, 7.08578983, 7.812190141, 8.571558508, 9.373180297, 10.206104544, 11.102547849, 12.08830468, 13.166382946, 14.336907176, 15.604382513, 16.970138999, 18.434928669, 20], False, 3, [1, 1, 1, 1, 1, 1, 1, 1, 1, 1, 1, 1, 1, 1, 1, 1, 1, 1, 1, 1, 1, 1, 1], False), False)  # 37
sketch6.addGeometry(Part.BSplineCurve([V(32.621909, -2.25641, 0), V(32.598266, -2.256348, 0), V(32.552157, -2.256226, 0), V(32.48471, -2.252629, 0), V(32.420516, -2.24825, 0), V(32.359757, -2.24081, 0), V(32.302253, -2.23214, 0), V(32.248019, -2.221508, 0), V(32.197308, -2.208137, 0), V(32.149702, -2.193528, 0), V(32.105654, -2.176375, 0), V(32.064326, -2.158771, 0), V(32.026543, -2.138799, 0), V(31.991511, -2.118184, 0), V(31.959721, -2.095702, 0), V(31.931255, -2.071623, 0), V(31.90584, -2.046363, 0), V(31.876731, -2.01133, 0), V(31.847341, -1.965407, 0), V(31.820358, -1.90841, 0), V(31.8046, -1.849529, 0), V(31.802459, -1.809782, 0), V(31.801396, -1.790064, 0)], [4, 1, 1, 1, 1, 1, 1, 1, 1, 1, 1, 1, 1, 1, 1, 1, 1, 1, 1, 1, 4], [0, 1.352995991, 2.638568693, 3.864972623, 5.034911379, 6.140799663, 7.193115141, 8.196082668, 9.141322174, 10.041316549, 10.90046054, 11.710713657, 12.485432581, 13.225595763, 13.936117752, 14.617123955, 15.273802947, 16.539521554, 17.726268428, 18.872011902, 20], False, 3, [1, 1, 1, 1, 1, 1, 1, 1, 1, 1, 1, 1, 1, 1, 1, 1, 1, 1, 1, 1, 1, 1, 1], False), False)  # 38
sketch6.addGeometry(Part.BSplineCurve([V(33.116701, -2.183894, 0), V(33.099259, -2.189674, 0), V(33.063702, -2.201456, 0), V(33.008342, -2.216217, 0), V(32.950254, -2.228437, 0), V(32.889745, -2.23896, 0), V(32.826511, -2.246949, 0), V(32.760614, -2.252472, 0), V(32.692052, -2.25564, 0), V(32.64555, -2.256151, 0), V(32.621909, -2.25641, 0)], [4, 1, 1, 1, 1, 1, 1, 1, 4], [0, 0.877617242, 1.789083553, 2.735016418, 3.71249782, 4.722174671, 5.778575778, 6.870664861, 8], False, 3, [1, 1, 1, 1, 1, 1, 1, 1, 1, 1, 1], False), False)  # 39
sketch6.addGeometry(Part.BSplineCurve([V(33.442422, -1.790064, 0), V(33.441381, -1.810321, 0), V(33.439311, -1.850579, 0), V(33.423696, -1.909962, 0), V(33.398177, -1.967098, 0), V(33.368872, -2.01235, 0), V(33.340512, -2.046488, 0), V(33.316359, -2.071138, 0), V(33.289396, -2.093859, 0), V(33.260032, -2.115309, 0), V(33.227785, -2.134703, 0), V(33.193389, -2.153404, 0), V(33.156018, -2.169687, 0), V(33.129976, -2.179097, 0), V(33.116701, -2.183894, 0)], [4, 1, 1, 1, 1, 1, 1, 1, 1, 1, 1, 1, 4], [0, 1.331941515, 2.647076996, 4.012321115, 5.435916507, 6.178566488, 6.930518042, 7.703588399, 8.496388142, 9.320850189, 10.177968117, 11.071180671, 12], False, 3, [1, 1, 1, 1, 1, 1, 1, 1, 1, 1, 1, 1, 1, 1, 1], False), False)  # 40
sketch6.addGeometry(Part.BSplineCurve([V(32.621909, -1.358974, 0), V(32.648754, -1.359097, 0), V(32.700723, -1.359334, 0), V(32.775957, -1.36203, 0), V(32.845915, -1.367147, 0), V(32.910824, -1.37258, 0), V(32.970511, -1.38125, 0), V(33.025143, -1.390958, 0), V(33.074486, -1.402979, 0), V(33.119027, -1.416664, 0), V(33.159544, -1.432014, 0), V(33.196846, -1.449044, 0), V(33.231805, -1.466693, 0), V(33.263526, -1.486689, 0), V(33.293007, -1.507308, 0), V(33.319533, -1.529992, 0), V(33.343623, -1.553773, 0), V(33.370828, -1.587119, 0), V(33.398913, -1.62986, 0), V(33.42365, -1.682703, 0), V(33.439719, -1.736112, 0), V(33.441527, -1.772195, 0), V(33.442422, -1.790064, 0)], [4, 1, 1, 1, 1, 1, 1, 1, 1, 1, 1, 1, 1, 1, 1, 1, 1, 1, 1, 1, 4], [0, 1.5649567, 3.029639083, 4.387528411, 5.654169398, 6.825669047, 7.902233587, 8.887918217, 9.784295864, 10.617159105, 11.411620328, 12.174198952, 12.897954492, 13.595742744, 14.269624431, 14.930243367, 15.566226112, 16.775482614, 17.900530002, 18.960326499, 20], False, 3, [1, 1, 1, 1, 1, 1, 1, 1, 1, 1, 1, 1, 1, 1, 1, 1, 1, 1, 1, 1, 1, 1, 1], False), False)  # 41
add_polygon(sketch6, [(31.570627, -3.846154), (31.570627, -3.744792), (33.160371, -2.666667), (33.160371, -3.589744), (33.621909, -3.589744), (33.621909, -3.846154), (33.160371, -3.846154), (33.160371, -4.076923), (32.929601, -4.076923), (32.929601, -3.846154)])  # lines 42-51
add_polygon(sketch6, [(32.929601, -3.589744), (32.929601, -3.080529), (32.134329, -3.589744)])  # lines 52-54
sketch6.addConstraint([
    Sketcher.Constraint("Block", 1),
    Sketcher.Constraint("Block", 2),
    Sketcher.Constraint("Block", 3),
    Sketcher.Constraint("Block", 4),
    Sketcher.Constraint("Block", 5),
    Sketcher.Constraint("Block", 6),
    Sketcher.Constraint("Block", 7),
    Sketcher.Constraint("Block", 9),
    Sketcher.Constraint("Block", 10),
    Sketcher.Constraint("Block", 11),
    Sketcher.Constraint("Block", 12),
    Sketcher.Constraint("Block", 13),
    Sketcher.Constraint("Block", 14),
    Sketcher.Constraint("Block", 15),
    Sketcher.Constraint("Block", 16),
    Sketcher.Constraint("Block", 33),
    Sketcher.Constraint("Block", 34),
    Sketcher.Constraint("Block", 35),
    Sketcher.Constraint("Block", 36),
    Sketcher.Constraint("Block", 37),
    Sketcher.Constraint("Block", 38),
    Sketcher.Constraint("Block", 39),
    Sketcher.Constraint("Block", 40),
    Sketcher.Constraint("Block", 41),
    Sketcher.Constraint("Coincident", 0, 2, 1, 2),
    Sketcher.Constraint("Coincident", 7, 1, 8, 1),
    Sketcher.Constraint("Coincident", 8, 2, 9, 2),
    Sketcher.Constraint("Coincident", 16, 1, 0, 1),
    Sketcher.Constraint("Horizontal", 17),
    Sketcher.Constraint("Vertical", 18),
    Sketcher.Constraint("Horizontal", 19),
    Sketcher.Constraint("Vertical", 21),
    Sketcher.Constraint("Horizontal", 22),
    Sketcher.Constraint("Vertical", 23),
    Sketcher.Constraint("Horizontal", 24),
    Sketcher.Constraint("Vertical", 26),
    Sketcher.Constraint("Vertical", 27),
    Sketcher.Constraint("Vertical", 29),
    Sketcher.Constraint("Horizontal", 30),
    Sketcher.Constraint("Vertical", 31),
    Sketcher.Constraint("Horizontal", 32),
    Sketcher.Constraint("Vertical", 42),
    Sketcher.Constraint("Vertical", 44),
    Sketcher.Constraint("Horizontal", 45),
    Sketcher.Constraint("Vertical", 46),
    Sketcher.Constraint("Horizontal", 47),
    Sketcher.Constraint("Vertical", 48),
    Sketcher.Constraint("Horizontal", 49),
    Sketcher.Constraint("Vertical", 50),
    Sketcher.Constraint("Horizontal", 51),
    Sketcher.Constraint("Vertical", 52),
    Sketcher.Constraint("Horizontal", 54),
    Sketcher.Constraint("Horizontal", 47, 2, 50, 2),
    Sketcher.Constraint("Horizontal", 45, 2, 53, 2),
    Sketcher.Constraint("Vertical", 18, 2, 20, 2),
    Sketcher.Constraint("Vertical", 23, 2, 25, 2),
    Sketcher.Constraint("Vertical", 26, 2, 27, 2),
    Sketcher.Constraint("Vertical", 21, 2, 30, 2),
    Sketcher.Constraint("Vertical", 31, 2, 45, 2),
    Sketcher.Constraint("Vertical", 44, 2, 47, 2),
    Sketcher.Constraint("Vertical", 50, 2, 52, 2),
    Sketcher.Constraint("Equal", 18, 23),
    Sketcher.Constraint("Equal", 23, 31),
    Sketcher.Constraint("Equal", 31, 46),
    Sketcher.Constraint("Equal", 49, 48),
    Sketcher.Constraint("DistanceX", 17, 1, 17, 2, Q("2 mm")),
    Sketcher.Constraint("DistanceY", 27, 2, 19, 2, Q("0.0818002 in")),
    Sketcher.Constraint("DistanceX", 24, 1, 24, 2, Q("1.519631 mm")),
    Sketcher.Constraint("DistanceX", 30, 1, 30, 2, Q("1.769231 mm")),
    Sketcher.Constraint("DistanceX", 45, 1, 45, 2, Q("0.461538 mm")),
    Sketcher.Constraint("DistanceX", 49, 2, 49, 1, Q("0.230769 mm")),
    Sketcher.Constraint("DistanceY", 18, 2, 18, 1, Q("0.25641 mm")),
    Sketcher.Constraint("DistanceY", 26, 1, 26, 2, Q("0.094952 mm")),
    Sketcher.Constraint("DistanceX", -1, 1, 49, 2, Q("32.929601 mm")),
    Sketcher.Constraint("DistanceX", 42, 2, 53, 2, Q("0.563702 mm")),
    Sketcher.Constraint("Distance", 28, Q("0.264381 mm")),
    Sketcher.Constraint("Distance", 53, Q("0.944329 mm")),
    Sketcher.Constraint("DistanceX", 19, 2, 19, 1, Q("1.515625 mm")),
    Sketcher.Constraint("DistanceX", 51, 2, 51, 1, Q("1.358974 mm")),
    Sketcher.Constraint("DistanceY", 21, 2, 21, 1, Q("0.104968 mm")),
    Sketcher.Constraint("DistanceY", 27, 1, 27, 2, Q("0.435096 mm")),
    Sketcher.Constraint("DistanceY", 42, 1, 42, 2, Q("0.101362 mm")),
    Sketcher.Constraint("DistanceY", 44, 2, 44, 1, Q("0.923077 mm")),
    Sketcher.Constraint("DistanceY", -1, 1, 20, 2, Q("0.89984 mm")),
    Sketcher.Constraint("DistanceY", -1, 1, 27, 2, Q("0.02484 mm")),
    Sketcher.Constraint("DistanceY", 42, 2, -1, 1, Q("3.744792 mm")),
])
pocket2 = body.newObject("PartDesign::Pocket", "Pocket001")
pocket2.Profile = sketch6
pocket2.Length = 0.5
pocket2.Reversed = True

doc.recompute()
